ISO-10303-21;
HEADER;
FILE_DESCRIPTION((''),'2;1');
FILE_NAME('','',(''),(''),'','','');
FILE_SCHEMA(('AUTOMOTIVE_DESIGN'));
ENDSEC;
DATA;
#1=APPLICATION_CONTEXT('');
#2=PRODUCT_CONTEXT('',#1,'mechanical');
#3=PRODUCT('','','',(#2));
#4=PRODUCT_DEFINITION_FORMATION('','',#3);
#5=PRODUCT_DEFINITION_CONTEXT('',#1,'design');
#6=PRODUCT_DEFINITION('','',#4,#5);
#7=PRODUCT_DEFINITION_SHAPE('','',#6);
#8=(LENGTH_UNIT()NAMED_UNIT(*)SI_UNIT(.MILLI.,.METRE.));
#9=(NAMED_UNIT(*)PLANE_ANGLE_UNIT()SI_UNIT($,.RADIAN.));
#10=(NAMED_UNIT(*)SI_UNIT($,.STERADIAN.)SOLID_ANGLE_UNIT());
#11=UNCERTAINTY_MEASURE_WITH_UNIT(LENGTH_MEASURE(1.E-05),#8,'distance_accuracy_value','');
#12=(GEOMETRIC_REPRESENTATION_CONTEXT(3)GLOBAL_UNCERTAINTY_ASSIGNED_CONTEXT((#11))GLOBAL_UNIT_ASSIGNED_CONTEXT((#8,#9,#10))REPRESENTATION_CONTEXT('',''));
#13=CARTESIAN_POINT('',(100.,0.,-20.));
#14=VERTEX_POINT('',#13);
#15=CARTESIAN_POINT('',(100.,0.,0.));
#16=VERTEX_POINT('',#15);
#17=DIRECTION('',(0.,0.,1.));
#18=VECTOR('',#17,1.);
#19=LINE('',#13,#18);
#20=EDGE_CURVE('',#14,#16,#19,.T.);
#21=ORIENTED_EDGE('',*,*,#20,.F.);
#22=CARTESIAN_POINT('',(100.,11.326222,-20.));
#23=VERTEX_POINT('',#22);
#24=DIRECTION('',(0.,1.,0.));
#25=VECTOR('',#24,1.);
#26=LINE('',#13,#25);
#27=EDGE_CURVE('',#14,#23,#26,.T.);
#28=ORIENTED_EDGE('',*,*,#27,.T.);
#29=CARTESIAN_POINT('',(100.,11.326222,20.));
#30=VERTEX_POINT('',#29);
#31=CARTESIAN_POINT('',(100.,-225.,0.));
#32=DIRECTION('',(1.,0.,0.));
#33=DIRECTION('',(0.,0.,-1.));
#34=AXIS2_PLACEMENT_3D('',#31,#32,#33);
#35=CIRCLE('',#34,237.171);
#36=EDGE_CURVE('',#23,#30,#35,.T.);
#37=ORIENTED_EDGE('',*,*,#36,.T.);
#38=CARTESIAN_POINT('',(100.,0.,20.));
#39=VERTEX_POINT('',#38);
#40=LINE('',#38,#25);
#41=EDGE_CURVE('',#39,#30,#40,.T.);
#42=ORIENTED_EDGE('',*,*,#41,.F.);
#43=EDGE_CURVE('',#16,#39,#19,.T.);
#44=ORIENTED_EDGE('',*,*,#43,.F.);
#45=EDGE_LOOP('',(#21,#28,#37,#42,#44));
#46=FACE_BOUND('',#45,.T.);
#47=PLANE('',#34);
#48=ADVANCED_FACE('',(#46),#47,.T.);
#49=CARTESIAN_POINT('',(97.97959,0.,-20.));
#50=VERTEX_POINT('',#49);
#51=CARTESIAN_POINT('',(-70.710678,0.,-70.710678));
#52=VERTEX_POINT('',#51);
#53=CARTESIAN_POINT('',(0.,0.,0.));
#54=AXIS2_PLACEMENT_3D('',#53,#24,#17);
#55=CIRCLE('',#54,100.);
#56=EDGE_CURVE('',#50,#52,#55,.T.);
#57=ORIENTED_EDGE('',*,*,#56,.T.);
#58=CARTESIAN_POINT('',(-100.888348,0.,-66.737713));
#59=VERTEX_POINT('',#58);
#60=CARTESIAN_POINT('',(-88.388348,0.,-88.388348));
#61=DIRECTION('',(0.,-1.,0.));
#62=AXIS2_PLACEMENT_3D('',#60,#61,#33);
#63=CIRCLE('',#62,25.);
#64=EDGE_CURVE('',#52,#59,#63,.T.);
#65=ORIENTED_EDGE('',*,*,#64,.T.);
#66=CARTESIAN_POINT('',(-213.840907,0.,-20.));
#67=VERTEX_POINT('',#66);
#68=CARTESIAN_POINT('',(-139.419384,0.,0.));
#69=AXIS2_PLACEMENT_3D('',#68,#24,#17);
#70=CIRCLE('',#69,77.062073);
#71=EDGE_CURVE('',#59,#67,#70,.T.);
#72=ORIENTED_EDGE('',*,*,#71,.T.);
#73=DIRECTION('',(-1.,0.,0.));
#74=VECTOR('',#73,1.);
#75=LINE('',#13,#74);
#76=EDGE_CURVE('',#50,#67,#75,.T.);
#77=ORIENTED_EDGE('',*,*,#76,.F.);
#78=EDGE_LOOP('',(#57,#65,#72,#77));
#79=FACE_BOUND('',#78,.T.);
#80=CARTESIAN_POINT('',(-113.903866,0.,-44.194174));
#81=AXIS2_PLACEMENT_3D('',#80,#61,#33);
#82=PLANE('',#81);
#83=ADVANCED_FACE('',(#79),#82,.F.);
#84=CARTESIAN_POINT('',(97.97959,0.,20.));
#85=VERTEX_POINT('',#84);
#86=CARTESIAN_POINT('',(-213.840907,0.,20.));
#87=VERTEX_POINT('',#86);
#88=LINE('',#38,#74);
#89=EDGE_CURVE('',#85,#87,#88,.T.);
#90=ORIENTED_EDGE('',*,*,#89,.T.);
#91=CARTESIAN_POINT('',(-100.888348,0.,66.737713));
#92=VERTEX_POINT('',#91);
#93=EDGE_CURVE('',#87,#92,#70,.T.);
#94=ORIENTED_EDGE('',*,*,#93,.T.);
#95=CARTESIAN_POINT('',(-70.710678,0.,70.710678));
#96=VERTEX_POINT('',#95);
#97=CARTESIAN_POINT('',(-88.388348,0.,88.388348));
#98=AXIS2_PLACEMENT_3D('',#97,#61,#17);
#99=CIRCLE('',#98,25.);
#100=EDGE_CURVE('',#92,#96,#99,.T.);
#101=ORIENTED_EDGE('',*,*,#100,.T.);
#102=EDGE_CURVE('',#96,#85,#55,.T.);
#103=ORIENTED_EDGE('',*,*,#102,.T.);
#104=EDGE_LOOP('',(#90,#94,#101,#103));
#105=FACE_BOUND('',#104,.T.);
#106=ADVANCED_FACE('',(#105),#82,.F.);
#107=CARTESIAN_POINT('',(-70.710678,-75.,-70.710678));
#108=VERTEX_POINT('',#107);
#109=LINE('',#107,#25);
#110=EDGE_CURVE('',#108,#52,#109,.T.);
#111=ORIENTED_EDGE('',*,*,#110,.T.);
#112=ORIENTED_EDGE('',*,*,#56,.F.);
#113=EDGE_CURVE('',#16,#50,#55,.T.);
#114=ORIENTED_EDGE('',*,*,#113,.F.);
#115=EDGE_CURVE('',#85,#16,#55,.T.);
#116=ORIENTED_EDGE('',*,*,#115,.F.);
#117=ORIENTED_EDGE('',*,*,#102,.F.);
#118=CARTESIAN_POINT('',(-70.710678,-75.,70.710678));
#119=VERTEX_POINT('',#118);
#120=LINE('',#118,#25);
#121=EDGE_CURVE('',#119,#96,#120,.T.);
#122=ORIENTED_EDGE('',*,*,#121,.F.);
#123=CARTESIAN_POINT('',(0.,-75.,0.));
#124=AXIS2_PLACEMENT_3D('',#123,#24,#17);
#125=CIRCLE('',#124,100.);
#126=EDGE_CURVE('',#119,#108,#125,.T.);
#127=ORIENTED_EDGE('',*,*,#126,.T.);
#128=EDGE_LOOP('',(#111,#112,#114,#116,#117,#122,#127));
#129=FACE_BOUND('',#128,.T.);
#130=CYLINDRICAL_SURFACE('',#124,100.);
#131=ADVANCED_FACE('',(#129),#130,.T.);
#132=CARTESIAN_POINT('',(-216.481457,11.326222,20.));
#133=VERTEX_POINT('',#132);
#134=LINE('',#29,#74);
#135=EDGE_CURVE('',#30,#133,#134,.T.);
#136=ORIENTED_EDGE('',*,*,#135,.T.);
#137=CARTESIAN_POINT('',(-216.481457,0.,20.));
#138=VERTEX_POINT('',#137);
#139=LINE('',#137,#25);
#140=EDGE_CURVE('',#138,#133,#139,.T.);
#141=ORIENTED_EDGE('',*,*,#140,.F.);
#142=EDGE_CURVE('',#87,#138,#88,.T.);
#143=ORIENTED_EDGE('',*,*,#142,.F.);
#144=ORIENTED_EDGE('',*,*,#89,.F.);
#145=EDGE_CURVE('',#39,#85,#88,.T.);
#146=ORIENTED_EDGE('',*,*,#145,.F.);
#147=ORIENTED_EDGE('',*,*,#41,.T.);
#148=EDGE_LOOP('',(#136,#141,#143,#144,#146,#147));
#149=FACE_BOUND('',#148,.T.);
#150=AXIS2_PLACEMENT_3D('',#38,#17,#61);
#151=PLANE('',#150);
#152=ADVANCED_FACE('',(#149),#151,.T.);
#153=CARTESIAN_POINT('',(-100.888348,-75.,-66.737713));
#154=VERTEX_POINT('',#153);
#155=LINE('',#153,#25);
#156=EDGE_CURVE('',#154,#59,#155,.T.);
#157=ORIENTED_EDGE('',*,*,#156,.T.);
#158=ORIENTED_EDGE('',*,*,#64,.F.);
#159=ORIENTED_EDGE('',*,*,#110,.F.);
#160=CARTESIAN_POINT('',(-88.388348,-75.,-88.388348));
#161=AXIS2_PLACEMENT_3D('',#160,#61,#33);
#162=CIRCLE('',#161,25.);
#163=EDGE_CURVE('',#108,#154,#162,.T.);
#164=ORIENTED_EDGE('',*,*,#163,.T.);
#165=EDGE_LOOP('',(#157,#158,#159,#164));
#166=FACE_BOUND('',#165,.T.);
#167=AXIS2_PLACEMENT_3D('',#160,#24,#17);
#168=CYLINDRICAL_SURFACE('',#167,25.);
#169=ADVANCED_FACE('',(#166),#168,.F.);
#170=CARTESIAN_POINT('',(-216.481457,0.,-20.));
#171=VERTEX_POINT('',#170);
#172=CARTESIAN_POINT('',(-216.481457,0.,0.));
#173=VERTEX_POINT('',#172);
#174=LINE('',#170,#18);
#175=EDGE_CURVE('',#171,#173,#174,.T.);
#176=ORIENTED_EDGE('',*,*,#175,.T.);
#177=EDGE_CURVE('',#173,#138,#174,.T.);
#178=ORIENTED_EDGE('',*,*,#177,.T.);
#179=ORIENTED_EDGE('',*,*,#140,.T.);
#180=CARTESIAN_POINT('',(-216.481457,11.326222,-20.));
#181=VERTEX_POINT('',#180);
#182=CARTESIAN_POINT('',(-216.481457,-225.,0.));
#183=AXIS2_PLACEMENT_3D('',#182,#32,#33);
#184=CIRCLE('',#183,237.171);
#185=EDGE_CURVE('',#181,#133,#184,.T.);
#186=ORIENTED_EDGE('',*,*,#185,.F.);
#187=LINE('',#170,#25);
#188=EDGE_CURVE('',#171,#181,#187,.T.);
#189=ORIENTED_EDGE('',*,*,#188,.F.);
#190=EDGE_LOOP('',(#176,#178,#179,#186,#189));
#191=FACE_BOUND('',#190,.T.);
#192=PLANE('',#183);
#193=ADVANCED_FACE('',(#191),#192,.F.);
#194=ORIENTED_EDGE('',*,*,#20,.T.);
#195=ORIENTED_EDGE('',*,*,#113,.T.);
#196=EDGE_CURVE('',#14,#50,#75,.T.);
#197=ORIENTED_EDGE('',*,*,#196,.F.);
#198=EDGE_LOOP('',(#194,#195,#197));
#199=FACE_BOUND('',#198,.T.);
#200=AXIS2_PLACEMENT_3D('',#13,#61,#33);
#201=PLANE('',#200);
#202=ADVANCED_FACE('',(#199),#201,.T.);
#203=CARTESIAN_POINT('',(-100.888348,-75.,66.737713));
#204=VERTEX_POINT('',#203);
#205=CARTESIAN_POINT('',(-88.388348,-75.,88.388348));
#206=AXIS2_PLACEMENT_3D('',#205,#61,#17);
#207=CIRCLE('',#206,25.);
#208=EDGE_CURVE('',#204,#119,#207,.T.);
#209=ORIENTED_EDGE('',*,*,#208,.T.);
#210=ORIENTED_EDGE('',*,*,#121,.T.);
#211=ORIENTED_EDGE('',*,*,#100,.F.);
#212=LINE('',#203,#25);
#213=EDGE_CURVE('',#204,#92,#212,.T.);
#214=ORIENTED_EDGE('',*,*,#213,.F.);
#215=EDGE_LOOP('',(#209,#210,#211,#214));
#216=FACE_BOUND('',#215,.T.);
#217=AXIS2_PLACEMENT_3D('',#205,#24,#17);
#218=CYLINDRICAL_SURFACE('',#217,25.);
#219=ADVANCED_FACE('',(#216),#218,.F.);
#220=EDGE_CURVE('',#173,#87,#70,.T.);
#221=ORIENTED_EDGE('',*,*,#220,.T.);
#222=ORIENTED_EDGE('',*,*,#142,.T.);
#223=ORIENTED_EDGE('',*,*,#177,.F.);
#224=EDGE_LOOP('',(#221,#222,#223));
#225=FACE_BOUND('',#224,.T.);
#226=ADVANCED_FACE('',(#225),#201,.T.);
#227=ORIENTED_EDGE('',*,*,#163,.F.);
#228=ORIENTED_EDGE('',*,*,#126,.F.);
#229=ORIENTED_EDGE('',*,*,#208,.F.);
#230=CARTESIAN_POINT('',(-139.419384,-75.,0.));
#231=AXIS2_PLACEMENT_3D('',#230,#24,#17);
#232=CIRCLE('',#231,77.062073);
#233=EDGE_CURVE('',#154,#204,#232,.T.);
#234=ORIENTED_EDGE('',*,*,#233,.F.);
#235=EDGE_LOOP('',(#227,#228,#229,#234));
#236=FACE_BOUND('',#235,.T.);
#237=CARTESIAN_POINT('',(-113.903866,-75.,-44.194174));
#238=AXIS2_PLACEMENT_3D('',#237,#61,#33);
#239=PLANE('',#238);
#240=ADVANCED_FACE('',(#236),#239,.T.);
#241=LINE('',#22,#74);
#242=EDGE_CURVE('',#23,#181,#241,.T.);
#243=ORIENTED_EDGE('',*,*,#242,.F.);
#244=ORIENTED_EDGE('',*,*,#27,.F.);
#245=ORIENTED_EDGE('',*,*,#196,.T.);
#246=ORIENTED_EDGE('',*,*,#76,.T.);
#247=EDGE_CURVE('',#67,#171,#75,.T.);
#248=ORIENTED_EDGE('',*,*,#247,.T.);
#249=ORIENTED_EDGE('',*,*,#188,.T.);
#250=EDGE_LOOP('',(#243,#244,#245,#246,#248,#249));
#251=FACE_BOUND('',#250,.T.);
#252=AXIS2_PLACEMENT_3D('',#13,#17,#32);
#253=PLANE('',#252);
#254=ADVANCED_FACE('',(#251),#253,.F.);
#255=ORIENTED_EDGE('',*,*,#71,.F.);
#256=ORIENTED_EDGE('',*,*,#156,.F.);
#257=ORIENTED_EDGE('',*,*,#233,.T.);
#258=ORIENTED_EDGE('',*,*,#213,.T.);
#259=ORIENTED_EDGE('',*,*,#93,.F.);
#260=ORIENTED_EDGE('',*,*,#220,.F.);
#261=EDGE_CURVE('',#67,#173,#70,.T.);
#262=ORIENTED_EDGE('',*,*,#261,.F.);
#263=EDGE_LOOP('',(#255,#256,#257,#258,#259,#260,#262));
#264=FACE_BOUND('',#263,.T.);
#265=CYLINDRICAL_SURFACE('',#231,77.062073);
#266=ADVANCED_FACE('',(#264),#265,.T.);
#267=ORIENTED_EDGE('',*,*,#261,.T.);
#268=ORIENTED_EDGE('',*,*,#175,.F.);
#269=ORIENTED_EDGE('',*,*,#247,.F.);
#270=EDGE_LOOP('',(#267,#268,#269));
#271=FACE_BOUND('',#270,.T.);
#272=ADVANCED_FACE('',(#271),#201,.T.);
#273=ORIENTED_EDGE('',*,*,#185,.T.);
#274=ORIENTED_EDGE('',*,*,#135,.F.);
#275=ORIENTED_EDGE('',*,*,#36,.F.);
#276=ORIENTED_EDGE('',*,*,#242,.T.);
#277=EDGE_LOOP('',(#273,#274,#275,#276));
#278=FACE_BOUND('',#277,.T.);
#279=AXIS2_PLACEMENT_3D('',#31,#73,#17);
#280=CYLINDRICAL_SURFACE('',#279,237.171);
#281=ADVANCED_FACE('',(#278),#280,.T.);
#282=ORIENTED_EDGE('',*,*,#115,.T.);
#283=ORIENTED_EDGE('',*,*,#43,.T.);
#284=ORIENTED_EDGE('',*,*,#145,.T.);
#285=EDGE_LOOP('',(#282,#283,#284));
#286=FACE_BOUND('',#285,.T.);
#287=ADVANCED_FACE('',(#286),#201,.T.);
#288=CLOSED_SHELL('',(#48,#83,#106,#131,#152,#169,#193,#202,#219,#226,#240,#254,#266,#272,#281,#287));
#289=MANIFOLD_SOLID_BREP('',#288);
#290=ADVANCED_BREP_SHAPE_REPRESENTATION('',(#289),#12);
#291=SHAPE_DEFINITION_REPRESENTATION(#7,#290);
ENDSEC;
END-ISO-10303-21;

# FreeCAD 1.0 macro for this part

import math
import FreeCAD as App
import Part
import Sketcher
from FreeCAD import Vector
Q = App.Units.Quantity

doc = App.newDocument("Part")
body = doc.addObject("PartDesign::Body", "Body")

# Sketch on XZ plane
sketch1 = doc.addObject("Sketcher::SketchObject", "Sketch")
body.addObject(sketch1)
sketch1.AttachmentSupport = (doc.XZ_Plane, [""])
sketch1.MapMode = "FlatFace"
sketch1.addGeometry([
    Part.ArcOfCircle(Part.Circle(Vector(0, 0, 0), Vector(0, 0, 1), 100), math.radians(-135), math.radians(135)),
    Part.ArcOfCircle(Part.Circle(Vector(-88, -88, 0), Vector(0, 0, 1), 25), math.radians(45), math.radians(120)),
    Part.ArcOfCircle(Part.Circle(Vector(-139, 0, 0), Vector(0, 0, 1), 77), math.radians(60), math.radians(300)),
    Part.ArcOfCircle(Part.Circle(Vector(-88, 88, 0), Vector(0, 0, 1), 25), math.radians(-120), math.radians(-45)),
], False)
sketch1.addConstraint([
    Sketcher.Constraint("Tangent", 0, 1, 1, 1),
    Sketcher.Constraint("Tangent", 1, 2, 2, 2),
    Sketcher.Constraint("Tangent", 2, 1, 3, 1),
    Sketcher.Constraint("Tangent", 3, 2, 0, 2),
    Sketcher.Constraint("Coincident", 0, 3, -1, 1),
    Sketcher.Constraint("Equal", 1, 3),
    Sketcher.Constraint("PointOnObject", 2, 3, -1),
    Sketcher.Constraint("Radius", 0, Q("100 mm")),
    Sketcher.Constraint("Radius", 1, Q("25 mm")),
    Sketcher.Constraint("DistanceX", 1, 2, 1, 3, Q("12.5 mm")),
    Sketcher.Constraint("Radius", 2, Q("77.062073 mm")),
])
pad1 = doc.addObject("PartDesign::Pad", "Pad")
body.addObject(pad1)
pad1.Profile = sketch1
pad1.Length = 75

# Sketch on YZ plane
sketch2 = doc.addObject("Sketcher::SketchObject", "Sketch001")
body.addObject(sketch2)
sketch2.AttachmentSupport = (doc.YZ_Plane, [""])
sketch2.MapMode = "FlatFace"
sketch2.addGeometry([
    Part.LineSegment(Vector(0, -20, 0), Vector(11, -20, 0)),
    Part.ArcOfCircle(Part.Circle(Vector(-225, 0, 0), Vector(0, 0, 1), 237), math.radians(-4.84), math.radians(4.84)),
    Part.LineSegment(Vector(11, 20, 0), Vector(0, 20, 0)),
    Part.LineSegment(Vector(0, 20, 0), Vector(0, -20, 0)),
], False)
sketch2.addConstraint([
    Sketcher.Constraint("Coincident", 0, 2, 1, 1),
    Sketcher.Constraint("Coincident", 1, 2, 2, 1),
    Sketcher.Constraint("Coincident", 2, 2, 3, 1),
    Sketcher.Constraint("Coincident", 3, 2, 0, 1),
    Sketcher.Constraint("Horizontal", 0),
    Sketcher.Constraint("Horizontal", 2),
    Sketcher.Constraint("Vertical", 3),
    Sketcher.Constraint("Symmetric", 2, 2, 3, 2, -1, 1),
    Sketcher.Constraint("PointOnObject", 1, 3, -1),
    Sketcher.Constraint("DistanceY", 3, 2, 3, 1, Q("40 mm")),
    Sketcher.Constraint("DistanceX", 1, 3, -1, 1, Q("225 mm")),
    Sketcher.Constraint("Radius", 1, Q("237.171 mm")),
])
pad2 = doc.addObject("PartDesign::Pad", "Pad001")
body.addObject(pad2)
pad2.Profile = sketch2
pad2.Type = "TwoLengths"
pad2.Length = 100
pad2.Length2 = 216.481457

doc.recompute()
